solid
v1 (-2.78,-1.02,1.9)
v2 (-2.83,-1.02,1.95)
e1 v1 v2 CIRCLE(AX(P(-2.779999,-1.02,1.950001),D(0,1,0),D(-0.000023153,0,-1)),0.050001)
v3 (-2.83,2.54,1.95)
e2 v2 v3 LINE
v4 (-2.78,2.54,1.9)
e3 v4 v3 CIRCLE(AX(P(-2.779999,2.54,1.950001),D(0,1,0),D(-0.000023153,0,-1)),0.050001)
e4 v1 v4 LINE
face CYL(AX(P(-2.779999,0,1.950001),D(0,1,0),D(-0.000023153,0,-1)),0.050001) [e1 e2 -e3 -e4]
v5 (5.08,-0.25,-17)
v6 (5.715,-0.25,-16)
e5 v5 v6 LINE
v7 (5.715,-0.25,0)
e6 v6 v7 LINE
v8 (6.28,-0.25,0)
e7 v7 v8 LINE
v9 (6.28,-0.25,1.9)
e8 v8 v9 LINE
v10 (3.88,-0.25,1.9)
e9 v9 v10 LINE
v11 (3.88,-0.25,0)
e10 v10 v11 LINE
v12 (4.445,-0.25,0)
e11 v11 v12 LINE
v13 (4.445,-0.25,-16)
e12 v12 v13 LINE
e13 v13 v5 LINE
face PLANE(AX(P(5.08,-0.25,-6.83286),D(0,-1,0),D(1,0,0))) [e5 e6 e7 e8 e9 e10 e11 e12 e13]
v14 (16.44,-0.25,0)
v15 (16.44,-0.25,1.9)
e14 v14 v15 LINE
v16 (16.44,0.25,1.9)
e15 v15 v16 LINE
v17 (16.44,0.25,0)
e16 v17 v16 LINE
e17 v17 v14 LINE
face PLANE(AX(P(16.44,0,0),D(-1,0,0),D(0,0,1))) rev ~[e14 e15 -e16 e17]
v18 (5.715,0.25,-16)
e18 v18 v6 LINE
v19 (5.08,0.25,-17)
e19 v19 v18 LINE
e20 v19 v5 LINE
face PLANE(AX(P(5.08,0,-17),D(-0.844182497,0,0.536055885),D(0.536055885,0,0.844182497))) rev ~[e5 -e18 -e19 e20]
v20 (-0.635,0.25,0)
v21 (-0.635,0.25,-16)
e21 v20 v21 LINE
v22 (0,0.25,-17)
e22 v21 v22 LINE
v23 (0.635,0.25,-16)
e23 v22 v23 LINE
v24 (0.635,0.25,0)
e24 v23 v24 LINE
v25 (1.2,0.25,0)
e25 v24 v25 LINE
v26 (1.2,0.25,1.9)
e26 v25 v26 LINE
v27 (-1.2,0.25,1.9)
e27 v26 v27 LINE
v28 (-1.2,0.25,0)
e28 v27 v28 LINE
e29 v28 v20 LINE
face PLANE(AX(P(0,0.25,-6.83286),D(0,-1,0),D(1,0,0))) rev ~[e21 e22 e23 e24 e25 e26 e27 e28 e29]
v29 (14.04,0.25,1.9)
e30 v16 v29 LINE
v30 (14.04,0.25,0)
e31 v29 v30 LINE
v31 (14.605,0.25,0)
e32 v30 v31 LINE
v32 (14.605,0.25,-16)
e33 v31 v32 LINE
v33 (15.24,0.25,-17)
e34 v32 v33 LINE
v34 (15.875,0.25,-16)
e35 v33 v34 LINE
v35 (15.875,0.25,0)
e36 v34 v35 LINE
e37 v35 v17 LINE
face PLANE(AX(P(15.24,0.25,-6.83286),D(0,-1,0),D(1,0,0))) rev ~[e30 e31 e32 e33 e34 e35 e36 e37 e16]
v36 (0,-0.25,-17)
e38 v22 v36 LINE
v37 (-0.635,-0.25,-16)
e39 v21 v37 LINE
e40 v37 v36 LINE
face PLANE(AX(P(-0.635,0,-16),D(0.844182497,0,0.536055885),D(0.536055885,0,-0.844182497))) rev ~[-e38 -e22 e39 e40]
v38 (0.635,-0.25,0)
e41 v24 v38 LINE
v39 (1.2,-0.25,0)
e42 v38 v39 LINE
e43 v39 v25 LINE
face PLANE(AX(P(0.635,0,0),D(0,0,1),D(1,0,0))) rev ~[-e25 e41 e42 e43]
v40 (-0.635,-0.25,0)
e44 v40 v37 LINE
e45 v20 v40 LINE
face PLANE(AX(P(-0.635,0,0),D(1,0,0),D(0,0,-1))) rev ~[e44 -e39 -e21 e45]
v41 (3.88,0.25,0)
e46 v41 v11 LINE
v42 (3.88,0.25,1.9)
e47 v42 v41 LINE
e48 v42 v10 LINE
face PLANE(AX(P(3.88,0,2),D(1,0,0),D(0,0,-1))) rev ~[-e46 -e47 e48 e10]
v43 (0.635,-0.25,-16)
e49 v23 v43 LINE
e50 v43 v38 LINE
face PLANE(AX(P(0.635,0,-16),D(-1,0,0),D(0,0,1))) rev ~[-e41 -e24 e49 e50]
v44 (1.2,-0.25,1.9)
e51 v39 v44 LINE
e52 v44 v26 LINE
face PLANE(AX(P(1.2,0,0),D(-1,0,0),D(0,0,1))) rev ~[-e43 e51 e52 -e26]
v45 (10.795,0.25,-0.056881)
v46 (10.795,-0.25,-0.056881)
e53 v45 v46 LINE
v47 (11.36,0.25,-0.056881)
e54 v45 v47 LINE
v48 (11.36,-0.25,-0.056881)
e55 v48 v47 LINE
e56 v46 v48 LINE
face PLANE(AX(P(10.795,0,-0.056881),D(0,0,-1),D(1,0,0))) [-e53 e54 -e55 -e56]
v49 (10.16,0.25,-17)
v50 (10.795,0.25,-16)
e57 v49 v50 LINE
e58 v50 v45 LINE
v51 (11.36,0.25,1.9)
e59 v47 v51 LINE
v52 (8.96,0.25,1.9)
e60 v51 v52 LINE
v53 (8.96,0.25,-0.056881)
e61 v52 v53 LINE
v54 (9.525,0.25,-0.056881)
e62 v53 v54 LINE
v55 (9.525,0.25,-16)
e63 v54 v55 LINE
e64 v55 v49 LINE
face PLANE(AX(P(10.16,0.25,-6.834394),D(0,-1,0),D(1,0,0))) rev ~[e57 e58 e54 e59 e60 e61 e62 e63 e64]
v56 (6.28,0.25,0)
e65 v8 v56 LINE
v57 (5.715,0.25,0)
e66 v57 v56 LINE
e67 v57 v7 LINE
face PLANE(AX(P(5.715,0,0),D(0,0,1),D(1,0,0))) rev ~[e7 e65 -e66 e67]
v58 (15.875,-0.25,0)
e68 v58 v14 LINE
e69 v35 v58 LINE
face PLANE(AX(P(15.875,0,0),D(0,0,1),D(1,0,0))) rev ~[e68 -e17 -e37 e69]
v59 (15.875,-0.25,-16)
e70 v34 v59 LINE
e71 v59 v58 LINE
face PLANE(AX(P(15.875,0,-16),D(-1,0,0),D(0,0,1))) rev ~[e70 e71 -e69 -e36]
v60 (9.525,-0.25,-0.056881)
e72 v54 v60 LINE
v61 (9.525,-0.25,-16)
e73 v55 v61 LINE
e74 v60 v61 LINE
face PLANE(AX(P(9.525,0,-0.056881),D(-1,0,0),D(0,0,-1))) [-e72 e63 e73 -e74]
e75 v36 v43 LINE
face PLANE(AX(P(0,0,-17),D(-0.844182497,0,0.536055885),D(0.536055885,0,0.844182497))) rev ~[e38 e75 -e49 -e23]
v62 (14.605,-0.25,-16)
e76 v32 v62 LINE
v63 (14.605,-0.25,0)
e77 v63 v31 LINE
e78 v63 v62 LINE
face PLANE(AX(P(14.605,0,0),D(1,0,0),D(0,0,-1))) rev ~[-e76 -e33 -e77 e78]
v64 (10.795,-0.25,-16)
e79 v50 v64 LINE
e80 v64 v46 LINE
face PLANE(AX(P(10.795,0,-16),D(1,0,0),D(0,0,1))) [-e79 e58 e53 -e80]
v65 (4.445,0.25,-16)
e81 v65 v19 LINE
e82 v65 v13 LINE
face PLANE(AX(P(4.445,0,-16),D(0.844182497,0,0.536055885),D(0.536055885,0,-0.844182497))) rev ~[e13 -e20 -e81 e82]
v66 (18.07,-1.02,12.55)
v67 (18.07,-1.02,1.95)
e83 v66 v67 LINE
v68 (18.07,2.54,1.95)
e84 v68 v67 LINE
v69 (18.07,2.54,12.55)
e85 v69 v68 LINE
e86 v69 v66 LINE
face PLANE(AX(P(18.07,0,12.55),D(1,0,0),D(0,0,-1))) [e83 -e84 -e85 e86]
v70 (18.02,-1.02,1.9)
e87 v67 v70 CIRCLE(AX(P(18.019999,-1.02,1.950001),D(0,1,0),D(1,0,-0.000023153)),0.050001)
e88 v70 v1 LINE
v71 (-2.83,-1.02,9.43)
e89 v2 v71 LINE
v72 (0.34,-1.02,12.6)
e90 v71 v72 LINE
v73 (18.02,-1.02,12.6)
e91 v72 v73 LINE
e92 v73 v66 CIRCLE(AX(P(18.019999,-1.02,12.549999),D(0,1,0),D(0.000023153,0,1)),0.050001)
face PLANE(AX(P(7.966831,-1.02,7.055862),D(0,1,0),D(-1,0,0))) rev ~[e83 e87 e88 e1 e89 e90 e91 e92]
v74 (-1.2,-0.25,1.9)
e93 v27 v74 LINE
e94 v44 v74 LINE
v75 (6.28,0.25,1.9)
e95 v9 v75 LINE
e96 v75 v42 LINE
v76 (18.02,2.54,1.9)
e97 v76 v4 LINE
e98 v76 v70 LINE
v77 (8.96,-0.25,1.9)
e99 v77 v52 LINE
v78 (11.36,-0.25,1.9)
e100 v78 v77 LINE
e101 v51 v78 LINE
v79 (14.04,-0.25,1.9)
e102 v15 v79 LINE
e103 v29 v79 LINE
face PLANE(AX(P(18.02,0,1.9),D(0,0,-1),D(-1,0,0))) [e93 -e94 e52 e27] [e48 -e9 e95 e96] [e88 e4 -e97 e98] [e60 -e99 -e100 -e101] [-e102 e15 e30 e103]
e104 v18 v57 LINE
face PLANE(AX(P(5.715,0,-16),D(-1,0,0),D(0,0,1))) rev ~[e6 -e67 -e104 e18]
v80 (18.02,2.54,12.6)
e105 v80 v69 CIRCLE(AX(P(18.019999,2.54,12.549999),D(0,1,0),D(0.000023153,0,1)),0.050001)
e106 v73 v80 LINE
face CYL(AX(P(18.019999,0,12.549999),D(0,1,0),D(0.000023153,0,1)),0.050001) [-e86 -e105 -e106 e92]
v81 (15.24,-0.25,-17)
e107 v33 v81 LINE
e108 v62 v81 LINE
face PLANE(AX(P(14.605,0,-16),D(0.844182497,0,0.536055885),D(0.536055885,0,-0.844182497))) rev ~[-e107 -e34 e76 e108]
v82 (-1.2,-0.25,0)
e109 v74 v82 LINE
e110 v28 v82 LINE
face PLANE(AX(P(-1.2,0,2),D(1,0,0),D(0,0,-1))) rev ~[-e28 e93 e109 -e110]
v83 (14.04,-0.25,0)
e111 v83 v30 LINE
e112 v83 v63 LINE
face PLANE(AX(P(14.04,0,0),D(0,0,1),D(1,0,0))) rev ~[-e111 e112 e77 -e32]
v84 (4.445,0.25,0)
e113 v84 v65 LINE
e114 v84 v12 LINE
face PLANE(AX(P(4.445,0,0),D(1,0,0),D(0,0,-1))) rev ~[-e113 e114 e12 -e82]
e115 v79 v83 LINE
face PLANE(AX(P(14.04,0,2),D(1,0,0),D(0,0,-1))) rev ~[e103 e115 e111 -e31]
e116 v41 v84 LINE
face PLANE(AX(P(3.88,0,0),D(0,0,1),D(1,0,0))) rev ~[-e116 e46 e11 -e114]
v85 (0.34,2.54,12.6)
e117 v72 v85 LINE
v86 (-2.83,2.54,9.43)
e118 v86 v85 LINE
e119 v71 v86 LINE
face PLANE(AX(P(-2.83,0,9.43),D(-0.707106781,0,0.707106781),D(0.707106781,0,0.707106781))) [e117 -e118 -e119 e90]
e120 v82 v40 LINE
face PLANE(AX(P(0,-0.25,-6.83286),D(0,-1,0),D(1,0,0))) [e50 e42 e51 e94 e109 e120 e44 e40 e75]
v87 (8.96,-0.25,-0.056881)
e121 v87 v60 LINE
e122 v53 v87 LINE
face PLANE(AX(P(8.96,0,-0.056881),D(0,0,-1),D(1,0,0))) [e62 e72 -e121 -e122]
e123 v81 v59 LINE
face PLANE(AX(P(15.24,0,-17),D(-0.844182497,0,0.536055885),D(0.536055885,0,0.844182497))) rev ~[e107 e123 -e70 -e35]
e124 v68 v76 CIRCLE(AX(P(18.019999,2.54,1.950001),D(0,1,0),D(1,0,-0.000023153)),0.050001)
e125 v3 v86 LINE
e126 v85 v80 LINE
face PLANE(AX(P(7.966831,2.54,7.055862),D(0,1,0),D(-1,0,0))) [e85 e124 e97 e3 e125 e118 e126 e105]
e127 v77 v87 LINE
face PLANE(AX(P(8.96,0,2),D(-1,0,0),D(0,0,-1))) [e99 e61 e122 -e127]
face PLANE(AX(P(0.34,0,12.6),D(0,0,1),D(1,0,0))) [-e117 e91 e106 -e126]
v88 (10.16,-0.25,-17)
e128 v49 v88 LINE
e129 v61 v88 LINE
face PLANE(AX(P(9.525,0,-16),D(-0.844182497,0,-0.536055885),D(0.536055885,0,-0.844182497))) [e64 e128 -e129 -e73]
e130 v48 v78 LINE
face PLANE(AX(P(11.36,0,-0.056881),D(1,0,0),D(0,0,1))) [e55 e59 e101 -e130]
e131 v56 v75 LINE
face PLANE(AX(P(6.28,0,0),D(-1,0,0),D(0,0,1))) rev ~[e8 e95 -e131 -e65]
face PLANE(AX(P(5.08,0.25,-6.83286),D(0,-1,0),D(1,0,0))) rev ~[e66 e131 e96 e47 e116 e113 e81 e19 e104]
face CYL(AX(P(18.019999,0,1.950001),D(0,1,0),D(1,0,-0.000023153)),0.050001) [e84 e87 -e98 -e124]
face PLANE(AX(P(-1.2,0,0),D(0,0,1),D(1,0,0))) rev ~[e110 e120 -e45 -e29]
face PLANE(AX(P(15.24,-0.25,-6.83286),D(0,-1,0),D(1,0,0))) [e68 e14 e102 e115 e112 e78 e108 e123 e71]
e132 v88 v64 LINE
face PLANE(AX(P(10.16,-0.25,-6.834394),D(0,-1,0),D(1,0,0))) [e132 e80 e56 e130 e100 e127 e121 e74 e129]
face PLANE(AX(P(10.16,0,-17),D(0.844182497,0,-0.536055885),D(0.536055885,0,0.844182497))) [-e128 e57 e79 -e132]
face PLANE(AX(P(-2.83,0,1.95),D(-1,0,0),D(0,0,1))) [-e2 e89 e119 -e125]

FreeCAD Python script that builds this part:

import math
import FreeCAD as App
import Part
import Sketcher
Q = App.Units.Quantity


def add_polygon(sketch, points):
    """Adds a closed chain of lines whose ends are joined by coincident constraints."""
    first, n = sketch.GeometryCount, len(points)
    for a, b in zip(points, points[1:] + points[:1]):
        sketch.addGeometry(Part.LineSegment(App.Vector(*a, 0), App.Vector(*b, 0)), False)
    for i in range(n):
        sketch.addConstraint(Sketcher.Constraint("Coincident", first + i, 2, first + (i + 1) % n, 1))

doc = App.newDocument("Part")
body = doc.addObject("PartDesign::Body", "Body")
body.AllowCompound = True

# Sketch on XZ plane
sketch1 = doc.addObject("Sketcher::SketchObject", "Sketch")
body.addObject(sketch1)
sketch1.AttachmentSupport = (doc.XZ_Plane, [""])
sketch1.MapMode = "FlatFace"
add_polygon(sketch1, [(-1.2, 2), (-1.2, 0), (-0.635, 0), (-0.635, -16), (0, -17), (0.635, -16), (0.635, 0), (1.2, 0), (1.2, 2)])  # lines 0-8
add_polygon(sketch1, [(14.605, 0), (14.605, -16), (15.24, -17), (15.875, -16), (15.875, 0), (16.44, 0), (16.44, 2), (14.04, 2), (14.04, 0)])  # lines 9-17
add_polygon(sketch1, [(3.88, 2), (3.88, 0), (4.445, 0), (4.445, -16), (5.08, -17), (5.715, -16), (5.715, 0), (6.28, 0), (6.28, 2)])  # lines 18-26
add_polygon(sketch1, [(8.96, 2), (8.96, -0.056881), (9.525, -0.056881), (9.525, -16), (10.16, -17), (10.795, -16), (10.795, -0.056881), (11.36, -0.056881), (11.36, 2)])  # lines 27-35
sketch1.addConstraint([
    Sketcher.Constraint("Vertical", 0),
    Sketcher.Constraint("Horizontal", 1),
    Sketcher.Constraint("Vertical", 2),
    Sketcher.Constraint("Vertical", 5),
    Sketcher.Constraint("Horizontal", 6),
    Sketcher.Constraint("Vertical", 7),
    Sketcher.Constraint("Horizontal", 8),
    Sketcher.Constraint("Vertical", 9),
    Sketcher.Constraint("Vertical", 12),
    Sketcher.Constraint("Horizontal", 13),
    Sketcher.Constraint("Vertical", 14),
    Sketcher.Constraint("Horizontal", 15),
    Sketcher.Constraint("Vertical", 16),
    Sketcher.Constraint("Horizontal", 17),
    Sketcher.Constraint("Vertical", 18),
    Sketcher.Constraint("Horizontal", 19),
    Sketcher.Constraint("Vertical", 20),
    Sketcher.Constraint("Vertical", 23),
    Sketcher.Constraint("Horizontal", 24),
    Sketcher.Constraint("Vertical", 25),
    Sketcher.Constraint("Horizontal", 26),
    Sketcher.Constraint("Vertical", 27),
    Sketcher.Constraint("Horizontal", 28),
    Sketcher.Constraint("Vertical", 29),
    Sketcher.Constraint("Vertical", 32),
    Sketcher.Constraint("Horizontal", 33),
    Sketcher.Constraint("Vertical", 34),
    Sketcher.Constraint("Horizontal", 35),
    Sketcher.Constraint("Symmetric", 1, 2, 5, 2, -1, 1),
    Sketcher.Constraint("Symmetric", 0, 2, 6, 2, -2),
    Sketcher.Constraint("PointOnObject", 3, 2, -2),
    Sketcher.Constraint("PointOnObject", 12, 2, -1),
    Sketcher.Constraint("PointOnObject", 16, 2, -1),
    Sketcher.Constraint("PointOnObject", 18, 2, -1),
    Sketcher.Constraint("PointOnObject", 23, 2, -1),
    Sketcher.Constraint("Parallel", 3, 10),
    Sketcher.Constraint("Parallel", 4, 11),
    Sketcher.Constraint("Parallel", 10, 21),
    Sketcher.Constraint("Parallel", 11, 22),
    Sketcher.Constraint("Parallel", 21, 30),
    Sketcher.Constraint("Parallel", 22, 31),
    Sketcher.Constraint("Horizontal", 2, 2, 4, 2),
    Sketcher.Constraint("Horizontal", 4, 2, 9, 2),
    Sketcher.Constraint("Horizontal", 3, 2, 10, 2),
    Sketcher.Constraint("Horizontal", 9, 2, 11, 2),
    Sketcher.Constraint("Horizontal", 8, 2, 14, 2),
    Sketcher.Constraint("Horizontal", 11, 2, 20, 2),
    Sketcher.Constraint("Horizontal", 10, 2, 21, 2),
    Sketcher.Constraint("Horizontal", 20, 2, 22, 2),
    Sketcher.Constraint("Horizontal", 15, 2, 25, 2),
    Sketcher.Constraint("Horizontal", 22, 2, 29, 2),
    Sketcher.Constraint("Horizontal", 21, 2, 30, 2),
    Sketcher.Constraint("Horizontal", 29, 2, 31, 2),
    Sketcher.Constraint("Horizontal", 28, 2, 32, 2),
    Sketcher.Constraint("Horizontal", 26, 2, 34, 2),
    Sketcher.Constraint("Equal", 6, 13),
    Sketcher.Constraint("Equal", 8, 15),
    Sketcher.Constraint("Equal", 17, 19),
    Sketcher.Constraint("Equal", 19, 24),
    Sketcher.Constraint("Equal", 24, 28),
    Sketcher.Constraint("Equal", 28, 33),
    Sketcher.Constraint("DistanceY", 0, 2, 0, 1, 2.0),
    Sketcher.Constraint("DistanceY", 2, 2, 2, 1, 16.0),
    Sketcher.Constraint("DistanceX", 8, 2, 8, 1, 2.4),
    Sketcher.Constraint("DistanceY", 3, 2, -1, 1, 17.0),
    Sketcher.Constraint("DistanceX", 1, 1, 1, 2, 0.565),
    Sketcher.Constraint("DistanceX", -1, 1, 10, 2, 15.24),
    Sketcher.Constraint("DistanceX", -1, 1, 18, 2, 3.88),
    Sketcher.Constraint("DistanceX", -1, 1, 27, 2, 8.96),
    Sketcher.Constraint("DistanceY", 27, 2, 27, 1, 2.056881),
])
pad1 = doc.addObject("PartDesign::Pad", "Pad")
body.addObject(pad1)
pad1.Profile = sketch1
pad1.Length = 0.5
pad1.Midplane = True
body2 = doc.addObject("PartDesign::Body", "Body001")

# Sketch on XZ plane
sketch2 = doc.addObject("Sketcher::SketchObject", "Sketch001")
body2.addObject(sketch2)
sketch2.AttachmentSupport = (doc.getObject("XZ_Plane001"), [""])
sketch2.MapMode = "FlatFace"
sketch2.addGeometry([
    Part.LineSegment(App.Vector(18.02, 1.9, 0), App.Vector(-2.78, 1.9, 0)),  # 0
    Part.ArcOfCircle(Part.Circle(App.Vector(-2.779999, 1.950001, 0), App.Vector(0, 0, 1), 0.050001), math.radians(-179.998673), math.radians(-90.001327)),  # 1
    Part.LineSegment(App.Vector(-2.83, 1.95, 0), App.Vector(-2.83, 9.43, 0)),  # 2
    Part.LineSegment(App.Vector(-2.83, 9.43, 0), App.Vector(0.34, 12.6, 0)),  # 3
    Part.LineSegment(App.Vector(0.34, 12.6, 0), App.Vector(18.02, 12.6, 0)),  # 4
    Part.ArcOfCircle(Part.Circle(App.Vector(18.019999, 12.549999, 0), App.Vector(0, 0, 1), 0.050001), math.radians(0.001327), math.radians(89.998673)),  # 5
    Part.LineSegment(App.Vector(18.07, 12.55, 0), App.Vector(18.07, 1.95, 0)),  # 6
    Part.ArcOfCircle(Part.Circle(App.Vector(18.019999, 1.950001, 0), App.Vector(0, 0, 1), 0.050001), math.radians(-89.998673), math.radians(-0.001327)),  # 7
], False)
sketch2.addConstraint([
    Sketcher.Constraint("Coincident", 0, 2, 1, 2),
    Sketcher.Constraint("Coincident", 1, 1, 2, 1),
    Sketcher.Constraint("Coincident", 2, 2, 3, 1),
    Sketcher.Constraint("Coincident", 3, 2, 4, 1),
    Sketcher.Constraint("Coincident", 4, 2, 5, 2),
    Sketcher.Constraint("Coincident", 5, 1, 6, 1),
    Sketcher.Constraint("Coincident", 6, 2, 7, 2),
    Sketcher.Constraint("Coincident", 7, 1, 0, 1),
    Sketcher.Constraint("Horizontal", 0),
    Sketcher.Constraint("Vertical", 2),
    Sketcher.Constraint("Horizontal", 4),
    Sketcher.Constraint("Vertical", 6),
    Sketcher.Constraint("Equal", 1, 5),
    Sketcher.Constraint("Equal", 5, 7),
    Sketcher.Constraint("Horizontal", 7, 3, 1, 1),
    Sketcher.Constraint("Horizontal", 1, 1, 6, 2),
    Sketcher.Constraint("Vertical", 1, 3, 0, 2),
    Sketcher.Constraint("Vertical", 7, 3, 4, 2),
    Sketcher.Constraint("Vertical", 4, 2, 7, 1),
    Sketcher.Constraint("Angle", 3, Q("45 deg")),
    Sketcher.Constraint("Radius", 1, 0.050001),
    Sketcher.Constraint("DistanceX", 0, 2, 0, 1, 20.8),
    Sketcher.Constraint("DistanceY", 6, 2, 6, 1, 10.6),
    Sketcher.Constraint("DistanceX", 4, 1, 4, 2, 17.68),
    Sketcher.Constraint("DistanceY", 2, 1, 2, 2, 7.48),
    Sketcher.Constraint("DistanceY", -1, 1, 0, 2, 1.9),
    Sketcher.Constraint("DistanceX", 1, 3, -1, 1, 2.779999),
])
pad2 = doc.addObject("PartDesign::Pad", "Pad001")
body2.addObject(pad2)
pad2.Profile = sketch2
pad2.Type = "TwoLengths"
pad2.Length = 2.54
pad2.Length2 = 1.02
pad2.Reversed = True
doc.recompute()

boolean = doc.addObject("PartDesign::Boolean", "Boolean")
body2.addObject(boolean)
boolean.Type = "Fuse"
boolean.addObjects([body])

doc.recompute()
